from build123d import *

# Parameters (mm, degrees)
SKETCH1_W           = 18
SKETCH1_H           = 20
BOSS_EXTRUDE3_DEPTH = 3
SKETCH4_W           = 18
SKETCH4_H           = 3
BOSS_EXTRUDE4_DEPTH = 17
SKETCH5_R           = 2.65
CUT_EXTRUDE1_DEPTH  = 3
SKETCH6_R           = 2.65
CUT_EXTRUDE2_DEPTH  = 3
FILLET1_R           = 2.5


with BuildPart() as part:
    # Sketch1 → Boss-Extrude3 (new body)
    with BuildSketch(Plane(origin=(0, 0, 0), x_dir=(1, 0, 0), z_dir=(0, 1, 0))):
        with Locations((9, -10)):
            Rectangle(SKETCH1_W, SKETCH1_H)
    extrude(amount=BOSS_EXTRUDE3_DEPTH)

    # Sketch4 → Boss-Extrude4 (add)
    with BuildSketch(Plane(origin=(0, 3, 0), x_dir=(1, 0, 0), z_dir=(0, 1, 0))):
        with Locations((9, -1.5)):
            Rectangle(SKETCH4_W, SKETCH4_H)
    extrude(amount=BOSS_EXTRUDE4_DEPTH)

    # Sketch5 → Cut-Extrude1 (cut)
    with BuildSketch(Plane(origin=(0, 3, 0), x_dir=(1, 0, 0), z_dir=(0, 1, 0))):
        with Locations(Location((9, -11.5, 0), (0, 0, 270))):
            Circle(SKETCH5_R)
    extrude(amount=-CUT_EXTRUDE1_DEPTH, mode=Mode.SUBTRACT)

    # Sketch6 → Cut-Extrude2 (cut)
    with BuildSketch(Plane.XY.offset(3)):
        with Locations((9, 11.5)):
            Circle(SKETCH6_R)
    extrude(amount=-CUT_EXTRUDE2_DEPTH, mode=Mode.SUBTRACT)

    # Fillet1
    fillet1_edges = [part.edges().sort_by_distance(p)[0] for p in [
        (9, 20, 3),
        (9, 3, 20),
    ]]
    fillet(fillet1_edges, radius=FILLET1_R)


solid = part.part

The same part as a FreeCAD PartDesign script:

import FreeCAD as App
import Part
import Sketcher
Q = App.Units.Quantity


def edges_at(feature, points):
    """Names of the edges that pass closest to the given points."""
    edges = feature.Shape.Edges
    near = lambda p: min(range(len(edges)), key=lambda i: edges[i].distToShape(Part.Vertex(*p))[0])
    return sorted({f"Edge{near(p) + 1}" for p in points})


def add_polygon(sketch, points):
    """Adds a closed chain of lines whose ends are joined by coincident constraints."""
    first, n = sketch.GeometryCount, len(points)
    for a, b in zip(points, points[1:] + points[:1]):
        sketch.addGeometry(Part.LineSegment(App.Vector(*a, 0), App.Vector(*b, 0)), False)
    for i in range(n):
        sketch.addConstraint(Sketcher.Constraint("Coincident", first + i, 2, first + (i + 1) % n, 1))

doc = App.newDocument("Part")
body = doc.addObject("PartDesign::Body", "Body")

sketch1 = doc.addObject("Sketcher::SketchObject", "Sketch")
body.addObject(sketch1)
sketch1.AttachmentSupport = (doc.XZ_Plane, [""])
sketch1.MapMode = "FlatFace"
add_polygon(sketch1, [(0, 0), (0, 20), (18, 20), (18, 0)])
sketch1.addConstraint([
    Sketcher.Constraint("Vertical", 0),
    Sketcher.Constraint("Horizontal", 1),
    Sketcher.Constraint("Vertical", 2),
    Sketcher.Constraint("Horizontal", 3),
    Sketcher.Constraint("Coincident", 3, 2, -1, 1),
    Sketcher.Constraint("DistanceX", 1, 1, 1, 2, Q("18 mm")),
    Sketcher.Constraint("DistanceY", 0, 1, 0, 2, Q("20 mm")),
])
pad1 = doc.addObject("PartDesign::Pad", "Pad")
body.addObject(pad1)
pad1.Profile = sketch1
pad1.Length = 3
pad1.Reversed = True

sketch2 = doc.addObject("Sketcher::SketchObject", "Sketch001")
body.addObject(sketch2)
sketch2.AttachmentSupport = (doc.XZ_Plane, [""])
sketch2.MapMode = "FlatFace"
sketch2.AttachmentOffset = App.Placement(App.Vector(0, 0, -3), App.Rotation())
add_polygon(sketch2, [(0, 0), (0, 3), (18, 3), (18, 0)])
sketch2.addConstraint([
    Sketcher.Constraint("Vertical", 0),
    Sketcher.Constraint("Horizontal", 1),
    Sketcher.Constraint("Vertical", 2),
    Sketcher.Constraint("Horizontal", 3),
    Sketcher.Constraint("Coincident", 3, 2, -1, 1),
    Sketcher.Constraint("DistanceX", 1, 1, 1, 2, Q("18 mm")),
    Sketcher.Constraint("DistanceY", 0, 1, 0, 2, Q("3 mm")),
])
pad2 = doc.addObject("PartDesign::Pad", "Pad001")
body.addObject(pad2)
pad2.Profile = sketch2
pad2.Length = 17
pad2.Reversed = True

sketch3 = doc.addObject("Sketcher::SketchObject", "Sketch002")
body.addObject(sketch3)
sketch3.AttachmentSupport = (doc.XZ_Plane, [""])
sketch3.MapMode = "FlatFace"
sketch3.AttachmentOffset = App.Placement(App.Vector(0, 0, -3), App.Rotation())
sketch3.addGeometry(Part.Circle(App.Vector(9, 11.5, 0), App.Vector(0, 0, 1), 2.6), False)
sketch3.addConstraint([
    Sketcher.Constraint("Diameter", 0, Q("5.3 mm")),
    Sketcher.Constraint("DistanceX", -1, 1, 0, 3, Q("9 mm")),
    Sketcher.Constraint("DistanceY", -1, 1, 0, 3, Q("11.5 mm")),
])
pocket1 = doc.addObject("PartDesign::Pocket", "Pocket")
body.addObject(pocket1)
pocket1.Profile = sketch3
pocket1.Length = 3
pocket1.Reversed = True

sketch4 = doc.addObject("Sketcher::SketchObject", "Sketch003")
body.addObject(sketch4)
sketch4.AttachmentSupport = (doc.XY_Plane, [""])
sketch4.MapMode = "FlatFace"
sketch4.AttachmentOffset = App.Placement(App.Vector(0, 0, 3), App.Rotation())
sketch4.addGeometry(Part.Circle(App.Vector(9, 11.5, 0), App.Vector(0, 0, 1), 2.6), False)
sketch4.addConstraint([
    Sketcher.Constraint("Diameter", 0, Q("5.3 mm")),
    Sketcher.Constraint("DistanceX", -1, 1, 0, 3, Q("9 mm")),
    Sketcher.Constraint("DistanceY", -1, 1, 0, 3, Q("11.5 mm")),
])
pocket2 = doc.addObject("PartDesign::Pocket", "Pocket001")
body.addObject(pocket2)
pocket2.Profile = sketch4
pocket2.Length = 3
doc.recompute()

fillet = doc.addObject("PartDesign::Fillet", "Fillet")
body.addObject(fillet)
fillet.Base = (pocket2, edges_at(pocket2, [(9, 20, 3), (9, 3, 20)]))
fillet.Radius = 2.5

doc.recompute()
